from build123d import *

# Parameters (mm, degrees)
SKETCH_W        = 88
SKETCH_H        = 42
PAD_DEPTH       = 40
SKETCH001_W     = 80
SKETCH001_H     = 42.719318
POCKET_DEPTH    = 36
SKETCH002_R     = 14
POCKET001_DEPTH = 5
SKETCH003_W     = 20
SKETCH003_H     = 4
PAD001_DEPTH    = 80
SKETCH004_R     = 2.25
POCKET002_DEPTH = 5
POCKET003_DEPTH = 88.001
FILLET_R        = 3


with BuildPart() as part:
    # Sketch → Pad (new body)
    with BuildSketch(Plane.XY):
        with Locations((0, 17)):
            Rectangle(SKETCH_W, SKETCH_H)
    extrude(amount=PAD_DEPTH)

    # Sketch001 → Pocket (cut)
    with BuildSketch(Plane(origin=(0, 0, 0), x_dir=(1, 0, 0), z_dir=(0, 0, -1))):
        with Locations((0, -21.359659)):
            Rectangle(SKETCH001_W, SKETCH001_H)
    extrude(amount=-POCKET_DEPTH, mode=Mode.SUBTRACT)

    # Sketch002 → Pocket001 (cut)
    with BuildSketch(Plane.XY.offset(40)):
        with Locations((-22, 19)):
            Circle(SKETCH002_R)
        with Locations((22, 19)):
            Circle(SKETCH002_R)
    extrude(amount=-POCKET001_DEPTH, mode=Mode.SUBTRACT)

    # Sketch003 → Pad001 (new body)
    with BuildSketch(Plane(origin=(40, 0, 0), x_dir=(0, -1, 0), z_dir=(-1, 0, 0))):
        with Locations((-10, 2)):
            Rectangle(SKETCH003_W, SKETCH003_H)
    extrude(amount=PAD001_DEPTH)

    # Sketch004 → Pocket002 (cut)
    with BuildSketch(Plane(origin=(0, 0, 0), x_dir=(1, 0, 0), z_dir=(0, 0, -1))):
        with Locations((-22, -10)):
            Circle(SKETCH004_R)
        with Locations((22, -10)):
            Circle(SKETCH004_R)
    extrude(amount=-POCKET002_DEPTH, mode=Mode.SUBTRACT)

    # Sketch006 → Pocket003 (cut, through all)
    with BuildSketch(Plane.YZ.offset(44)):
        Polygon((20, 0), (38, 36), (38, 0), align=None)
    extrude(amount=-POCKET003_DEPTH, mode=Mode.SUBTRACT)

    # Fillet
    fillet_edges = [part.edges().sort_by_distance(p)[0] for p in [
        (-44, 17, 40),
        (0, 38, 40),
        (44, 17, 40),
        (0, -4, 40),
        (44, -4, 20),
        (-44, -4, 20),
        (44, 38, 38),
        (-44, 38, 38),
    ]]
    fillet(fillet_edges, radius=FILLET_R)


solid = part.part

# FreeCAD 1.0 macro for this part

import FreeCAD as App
import Part
import Sketcher
Q = App.Units.Quantity


def edges_at(feature, points):
    """Names of the edges that pass closest to the given points."""
    edges = feature.Shape.Edges
    near = lambda p: min(range(len(edges)), key=lambda i: edges[i].distToShape(Part.Vertex(*p))[0])
    return sorted({f"Edge{near(p) + 1}" for p in points})

doc = App.newDocument("Part")
body = doc.addObject("PartDesign::Body", "Body")

sketch1 = body.newObject("Sketcher::SketchObject", "Sketch")
sketch1.AttachmentSupport = (doc.getObject("XY_Plane"), [""])
sketch1.MapMode = "FlatFace"
sketch1.addGeometry([
    Part.LineSegment(App.Vector(-44, 38, 0), App.Vector(-44, -4, 0)),
    Part.LineSegment(App.Vector(-44, -4, 0), App.Vector(44, -4, 0)),
    Part.LineSegment(App.Vector(44, -4, 0), App.Vector(44, 38, 0)),
    Part.LineSegment(App.Vector(44, 38, 0), App.Vector(-44, 38, 0)),
], False)
sketch1.addConstraint([
    Sketcher.Constraint("Coincident", 0, 2, 1, 1),
    Sketcher.Constraint("Coincident", 1, 2, 2, 1),
    Sketcher.Constraint("Coincident", 2, 2, 3, 1),
    Sketcher.Constraint("Coincident", 3, 2, 0, 1),
    Sketcher.Constraint("Vertical", 0),
    Sketcher.Constraint("Horizontal", 1),
    Sketcher.Constraint("Vertical", 2),
    Sketcher.Constraint("Horizontal", 3),
    Sketcher.Constraint("DistanceX", 1, 1, 1, 2, Q("88 mm")),
    Sketcher.Constraint("DistanceY", 0, 2, 0, 1, Q("42 mm")),
    Sketcher.Constraint("DistanceX", 0, 2, -1, 1, Q("44 mm")),
    Sketcher.Constraint("DistanceY", 0, 2, -1, 1, Q("4 mm")),
])
pad1 = body.newObject("PartDesign::Pad", "Pad")
pad1.Profile = sketch1
pad1.Length = 40

sketch2 = body.newObject("Sketcher::SketchObject", "Sketch001")
sketch2.AttachmentSupport = (doc.getObject("XY_Plane"), [""])
sketch2.MapMode = "FlatFace"
sketch2.addGeometry([
    Part.LineSegment(App.Vector(-40, 0, 0), App.Vector(-40, 42.719318, 0)),
    Part.LineSegment(App.Vector(-40, 42.719318, 0), App.Vector(40, 42.719318, 0)),
    Part.LineSegment(App.Vector(40, 42.719318, 0), App.Vector(40, 0, 0)),
    Part.LineSegment(App.Vector(40, 0, 0), App.Vector(-40, 0, 0)),
], False)
sketch2.addConstraint([
    Sketcher.Constraint("Coincident", 0, 2, 1, 1),
    Sketcher.Constraint("Coincident", 1, 2, 2, 1),
    Sketcher.Constraint("Coincident", 2, 2, 3, 1),
    Sketcher.Constraint("Coincident", 3, 2, 0, 1),
    Sketcher.Constraint("Vertical", 0),
    Sketcher.Constraint("Horizontal", 1),
    Sketcher.Constraint("Vertical", 2),
    Sketcher.Constraint("Horizontal", 3),
    Sketcher.Constraint("Symmetric", 2, 2, 3, 2, -1, 1),
    Sketcher.Constraint("DistanceX", 1, 1, 1, 2, Q("80 mm")),
    Sketcher.Constraint("DistanceY", 0, 1, 0, 2, Q("42.719318 mm")),
])
pocket1 = body.newObject("PartDesign::Pocket", "Pocket")
pocket1.Profile = sketch2
pocket1.Length = 36
pocket1.Reversed = True

sketch3 = body.newObject("Sketcher::SketchObject", "Sketch002")
sketch3.AttachmentSupport = (doc.getObject("XY_Plane"), [""])
sketch3.MapMode = "FlatFace"
sketch3.AttachmentOffset = App.Placement(App.Vector(0, 0, 40), App.Rotation())
sketch3.addGeometry([
    Part.Circle(App.Vector(-22, 19, 0), App.Vector(0, 0, 1), 14),
    Part.Circle(App.Vector(22, 19, 0), App.Vector(0, 0, 1), 14),
], False)
sketch3.addConstraint([
    Sketcher.Constraint("Equal", 0, 1),
    Sketcher.Constraint("Symmetric", 0, 3, 1, 3, -2),
    Sketcher.Constraint("Diameter", 0, Q("28 mm")),
    Sketcher.Constraint("DistanceX", 0, 3, -1, 1, Q("22 mm")),
    Sketcher.Constraint("DistanceY", -1, 1, 0, 3, Q("19 mm")),
])
pocket2 = body.newObject("PartDesign::Pocket", "Pocket001")
pocket2.Profile = sketch3
pocket2.Length = 5

sketch4 = body.newObject("Sketcher::SketchObject", "Sketch003")
sketch4.AttachmentSupport = (doc.getObject("YZ_Plane"), [""])
sketch4.MapMode = "FlatFace"
sketch4.AttachmentOffset = App.Placement(App.Vector(0, 0, 40), App.Rotation())
sketch4.addGeometry([
    Part.LineSegment(App.Vector(20, 4, 0), App.Vector(20, 0, 0)),
    Part.LineSegment(App.Vector(20, 0, 0), App.Vector(0, 0, 0)),
    Part.LineSegment(App.Vector(0, 0, 0), App.Vector(0, 4, 0)),
    Part.LineSegment(App.Vector(0, 4, 0), App.Vector(20, 4, 0)),
], False)
sketch4.addConstraint([
    Sketcher.Constraint("Coincident", 0, 2, 1, 1),
    Sketcher.Constraint("Coincident", 1, 2, 2, 1),
    Sketcher.Constraint("Coincident", 2, 2, 3, 1),
    Sketcher.Constraint("Coincident", 3, 2, 0, 1),
    Sketcher.Constraint("Vertical", 0),
    Sketcher.Constraint("Horizontal", 1),
    Sketcher.Constraint("Vertical", 2),
    Sketcher.Constraint("Horizontal", 3),
    Sketcher.Constraint("Coincident", 1, 2, -1, 1),
    Sketcher.Constraint("DistanceX", 1, 2, 1, 1, Q("20 mm")),
    Sketcher.Constraint("DistanceY", 0, 2, 0, 1, Q("4 mm")),
])
pad2 = body.newObject("PartDesign::Pad", "Pad001")
pad2.Profile = sketch4
pad2.Length = 80
pad2.Reversed = True

sketch5 = body.newObject("Sketcher::SketchObject", "Sketch004")
sketch5.AttachmentSupport = (doc.getObject("XY_Plane"), [""])
sketch5.MapMode = "FlatFace"
sketch5.addGeometry([
    Part.Circle(App.Vector(-22, 10, 0), App.Vector(0, 0, 1), 2.25),
    Part.Circle(App.Vector(22, 10, 0), App.Vector(0, 0, 1), 2.25),
], False)
sketch5.addConstraint([
    Sketcher.Constraint("Equal", 0, 1),
    Sketcher.Constraint("Symmetric", 0, 3, 1, 3, -2),
    Sketcher.Constraint("Diameter", 0, Q("4.5 mm")),
    Sketcher.Constraint("DistanceX", 0, 3, -1, 1, Q("22 mm")),
    Sketcher.Constraint("DistanceY", -1, 1, 0, 3, Q("10 mm")),
])
pocket3 = body.newObject("PartDesign::Pocket", "Pocket002")
pocket3.Profile = sketch5
pocket3.Length = 5
pocket3.Reversed = True

sketch6 = body.newObject("Sketcher::SketchObject", "Sketch005")
sketch6.AttachmentSupport = (doc.getObject("YZ_Plane"), [""])
sketch6.MapMode = "FlatFace"
sketch6.AttachmentOffset = App.Placement(App.Vector(0, 0, 44), App.Rotation())
sketch6.addGeometry([
    Part.LineSegment(App.Vector(38, 36, 0), App.Vector(20, 0, 0)),
    Part.LineSegment(App.Vector(20, 0, 0), App.Vector(38, 0, 0)),
    Part.LineSegment(App.Vector(38, 0, 0), App.Vector(38, 36, 0)),
], False)
sketch6.addConstraint([
    Sketcher.Constraint("Coincident", 0, 2, 1, 1),
    Sketcher.Constraint("Coincident", 1, 2, 2, 1),
    Sketcher.Constraint("Coincident", 2, 2, 0, 1),
    Sketcher.Constraint("Horizontal", 1),
    Sketcher.Constraint("Vertical", 2),
    Sketcher.Constraint("PointOnObject", 0, 2, -1),
    Sketcher.Constraint("DistanceX", 1, 1, 1, 2, Q("18 mm")),
    Sketcher.Constraint("DistanceY", 2, 1, 2, 2, Q("36 mm")),
    Sketcher.Constraint("DistanceX", -1, 1, 0, 2, Q("20 mm")),
])
pocket4 = body.newObject("PartDesign::Pocket", "Pocket003")
pocket4.Profile = sketch6
pocket4.Type = "ThroughAll"
doc.recompute()

fillet = body.newObject("PartDesign::Fillet", "Fillet")
fillet.Base = (pocket4, edges_at(pocket4, [
    (-44, 17, 40),
    (0, 38, 40),
    (44, 17, 40),
    (0, -4, 40),
    (44, -4, 20),
    (-44, -4, 20),
    (44, 38, 38),
    (-44, 38, 38),
]))
fillet.Radius = 3

doc.recompute()
